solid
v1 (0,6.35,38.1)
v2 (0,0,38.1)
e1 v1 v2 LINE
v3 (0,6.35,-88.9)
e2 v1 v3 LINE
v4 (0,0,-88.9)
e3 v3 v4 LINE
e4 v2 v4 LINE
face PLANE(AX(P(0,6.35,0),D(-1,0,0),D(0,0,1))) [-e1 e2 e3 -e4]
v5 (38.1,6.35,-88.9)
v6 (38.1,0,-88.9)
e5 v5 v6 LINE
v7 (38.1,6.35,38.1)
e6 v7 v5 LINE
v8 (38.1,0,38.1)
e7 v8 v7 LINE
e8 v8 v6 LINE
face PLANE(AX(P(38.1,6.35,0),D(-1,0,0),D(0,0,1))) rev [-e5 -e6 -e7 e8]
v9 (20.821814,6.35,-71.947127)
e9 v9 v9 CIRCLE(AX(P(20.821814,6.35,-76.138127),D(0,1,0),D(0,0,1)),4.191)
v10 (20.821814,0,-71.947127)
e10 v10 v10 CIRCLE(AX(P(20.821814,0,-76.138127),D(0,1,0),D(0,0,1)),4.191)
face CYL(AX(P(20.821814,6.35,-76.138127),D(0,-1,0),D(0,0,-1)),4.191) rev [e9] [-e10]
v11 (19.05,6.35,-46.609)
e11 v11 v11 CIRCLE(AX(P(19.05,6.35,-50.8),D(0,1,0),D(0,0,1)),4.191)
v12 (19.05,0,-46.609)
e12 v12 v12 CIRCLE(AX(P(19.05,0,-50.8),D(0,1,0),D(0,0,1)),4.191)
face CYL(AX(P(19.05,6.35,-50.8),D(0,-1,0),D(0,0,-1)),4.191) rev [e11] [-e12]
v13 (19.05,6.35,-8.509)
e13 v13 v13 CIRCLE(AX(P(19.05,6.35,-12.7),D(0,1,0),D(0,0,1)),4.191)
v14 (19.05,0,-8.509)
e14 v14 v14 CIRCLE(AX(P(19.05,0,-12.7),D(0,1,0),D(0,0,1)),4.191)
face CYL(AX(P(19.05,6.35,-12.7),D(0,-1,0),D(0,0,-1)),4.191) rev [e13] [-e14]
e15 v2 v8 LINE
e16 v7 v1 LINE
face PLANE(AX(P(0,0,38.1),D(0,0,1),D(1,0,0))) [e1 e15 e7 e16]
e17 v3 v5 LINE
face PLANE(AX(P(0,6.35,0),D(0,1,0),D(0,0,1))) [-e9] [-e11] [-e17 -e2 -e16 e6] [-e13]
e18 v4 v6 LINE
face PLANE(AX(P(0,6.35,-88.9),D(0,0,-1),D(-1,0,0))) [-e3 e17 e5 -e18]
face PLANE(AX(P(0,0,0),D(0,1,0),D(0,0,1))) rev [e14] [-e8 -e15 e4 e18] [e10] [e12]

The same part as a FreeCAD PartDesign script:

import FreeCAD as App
import Part
import Sketcher
Q = App.Units.Quantity

doc = App.newDocument("Part")
body = doc.addObject("PartDesign::Body", "Body")

# Sketch on XZ plane
sketch1 = doc.addObject("Sketcher::SketchObject", "Sketch")
body.addObject(sketch1)
sketch1.AttachmentSupport = (doc.XZ_Plane, [""])
sketch1.MapMode = "FlatFace"
sketch1.addGeometry([
    Part.LineSegment(App.Vector(0, -88.9, 0), App.Vector(0, 0, 0)),  # 0
    Part.LineSegment(App.Vector(0, 0, 0), App.Vector(38.1, 0, 0)),  # 1
    Part.LineSegment(App.Vector(38.1, 0, 0), App.Vector(38.1, -88.9, 0)),  # 2
    Part.LineSegment(App.Vector(38.1, -88.9, 0), App.Vector(0, -88.9, 0)),  # 3
    Part.Circle(App.Vector(19.1, -12.7, 0), App.Vector(0, 0, 1), 4.2),  # 4
    Part.Circle(App.Vector(19.1, -50.8, 0), App.Vector(0, 0, 1), 4.2),  # 5
    Part.Circle(App.Vector(20.8, -76.1, 0), App.Vector(0, 0, 1), 4.2),  # 6
], False)
sketch1.addConstraint([
    Sketcher.Constraint("Coincident", 0, 2, 1, 1),
    Sketcher.Constraint("Coincident", 1, 2, 2, 1),
    Sketcher.Constraint("Coincident", 2, 2, 3, 1),
    Sketcher.Constraint("Coincident", 3, 2, 0, 1),
    Sketcher.Constraint("Vertical", 0),
    Sketcher.Constraint("Horizontal", 1),
    Sketcher.Constraint("Vertical", 2),
    Sketcher.Constraint("Horizontal", 3),
    Sketcher.Constraint("Coincident", 0, 2, -1, 1),
    Sketcher.Constraint("Equal", 4, 5),
    Sketcher.Constraint("Equal", 5, 6),
    Sketcher.Constraint("Vertical", 4, 3, 5, 3),
    Sketcher.Constraint("Diameter", 4, Q("0.33 in")),
    Sketcher.Constraint("DistanceX", 1, 1, 1, 2, Q("1.5 in")),
    Sketcher.Constraint("DistanceY", 0, 1, 0, 2, Q("3.5 in")),
    Sketcher.Constraint("DistanceY", 5, 3, -1, 1, Q("2 in")),
    Sketcher.Constraint("DistanceY", 2, 2, 4, 3, Q("3 in")),
    Sketcher.Constraint("DistanceX", -1, 1, 4, 3, Q("0.75 in")),
    Sketcher.Constraint("DistanceX", -1, 1, 6, 3, 20.821814),
    Sketcher.Constraint("DistanceY", 6, 3, -1, 1, 76.138127),
])
pad1 = doc.addObject("PartDesign::Pad", "Pad")
body.addObject(pad1)
pad1.Profile = sketch1
pad1.Length = Q("0.25 in")
pad1.Reversed = True

# Sketch on XY plane
sketch2 = doc.addObject("Sketcher::SketchObject", "Sketch001")
body.addObject(sketch2)
sketch2.AttachmentSupport = (doc.XY_Plane, [""])
sketch2.MapMode = "FlatFace"
sketch2.addGeometry([
    Part.LineSegment(App.Vector(0, 6, 0), App.Vector(0, 0, 0)),
    Part.LineSegment(App.Vector(0, 0, 0), App.Vector(38, 0, 0)),
    Part.LineSegment(App.Vector(38, 0, 0), App.Vector(38, 6, 0)),
    Part.LineSegment(App.Vector(38, 6, 0), App.Vector(0, 6, 0)),
], False)
sketch2.addConstraint([
    Sketcher.Constraint("Coincident", 0, 2, 1, 1),
    Sketcher.Constraint("Coincident", 1, 2, 2, 1),
    Sketcher.Constraint("Coincident", 2, 2, 3, 1),
    Sketcher.Constraint("Coincident", 3, 2, 0, 1),
    Sketcher.Constraint("Vertical", 0),
    Sketcher.Constraint("Horizontal", 1),
    Sketcher.Constraint("Vertical", 2),
    Sketcher.Constraint("Horizontal", 3),
    Sketcher.Constraint("Coincident", 0, 2, -1, 1),
    Sketcher.Constraint("DistanceX", 1, 1, 1, 2, Q("1.5 in")),
    Sketcher.Constraint("DistanceY", 0, 2, 0, 1, Q("0.25 in")),
])
pad2 = doc.addObject("PartDesign::Pad", "Pad001")
body.addObject(pad2)
pad2.Profile = sketch2
pad2.Length = Q("1.5 in")

doc.recompute()
